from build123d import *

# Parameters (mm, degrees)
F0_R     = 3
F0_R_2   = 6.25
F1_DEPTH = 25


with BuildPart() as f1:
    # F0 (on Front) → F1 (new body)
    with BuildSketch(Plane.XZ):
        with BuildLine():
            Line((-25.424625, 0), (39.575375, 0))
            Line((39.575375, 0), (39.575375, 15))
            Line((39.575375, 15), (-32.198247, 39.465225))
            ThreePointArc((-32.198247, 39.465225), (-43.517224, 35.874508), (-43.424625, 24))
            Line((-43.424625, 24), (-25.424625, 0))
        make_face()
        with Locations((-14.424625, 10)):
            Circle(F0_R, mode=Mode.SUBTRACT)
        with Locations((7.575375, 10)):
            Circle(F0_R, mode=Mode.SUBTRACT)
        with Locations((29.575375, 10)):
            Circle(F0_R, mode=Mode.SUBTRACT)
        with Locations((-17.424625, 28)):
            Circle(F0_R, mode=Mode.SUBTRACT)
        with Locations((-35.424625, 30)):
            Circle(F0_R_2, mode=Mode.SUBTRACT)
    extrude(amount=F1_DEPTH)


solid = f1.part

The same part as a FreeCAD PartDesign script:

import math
import FreeCAD as App
import Part
import Sketcher
Q = App.Units.Quantity

doc = App.newDocument("Part")
body = doc.addObject("PartDesign::Body", "Body")

# Sketch on XZ plane
sketch1 = body.newObject("Sketcher::SketchObject", "Sketch")
sketch1.AttachmentSupport = (doc.getObject("XZ_Plane"), [""])
sketch1.MapMode = "FlatFace"
sketch1.addGeometry([
    Part.LineSegment(App.Vector(-25.424625, 0, 0), App.Vector(39.575375, 0, 0)),  # 0
    Part.LineSegment(App.Vector(39.575375, 0, 0), App.Vector(39.575375, 15, 0)),  # 1
    Part.LineSegment(App.Vector(39.575375, 15, 0), App.Vector(-32.198247, 39.465225, 0)),  # 2
    Part.ArcOfCircle(Part.Circle(App.Vector(-35.424625, 30, 0), App.Vector(0, 0, 1), 10), math.radians(71.177476), math.radians(216.869899)),  # 3
    Part.LineSegment(App.Vector(-43.424625, 24, 0), App.Vector(-25.424625, 0, 0)),  # 4
    Part.Circle(App.Vector(-14.424625, 10, 0), App.Vector(0, 0, 1), 3),  # 5
    Part.Circle(App.Vector(7.575375, 10, 0), App.Vector(0, 0, 1), 3),  # 6
    Part.Circle(App.Vector(29.575375, 10, 0), App.Vector(0, 0, 1), 3),  # 7
    Part.Circle(App.Vector(-17.424625, 28, 0), App.Vector(0, 0, 1), 3),  # 8
    Part.Circle(App.Vector(-35.424625, 30, 0), App.Vector(0, 0, 1), 6.25),  # 9
], False)
sketch1.addConstraint([
    Sketcher.Constraint("Coincident", 0, 2, 1, 1),
    Sketcher.Constraint("Coincident", 1, 2, 2, 1),
    Sketcher.Constraint("Tangent", 2, 2, 3, 1),
    Sketcher.Constraint("Tangent", 3, 2, 4, 1),
    Sketcher.Constraint("Coincident", 4, 2, 0, 1),
    Sketcher.Constraint("Horizontal", 0),
    Sketcher.Constraint("Vertical", 1),
    Sketcher.Constraint("Coincident", 9, 3, 3, 3),
    Sketcher.Constraint("Equal", 5, 6),
    Sketcher.Constraint("Equal", 6, 7),
    Sketcher.Constraint("Equal", 7, 8),
    Sketcher.Constraint("PointOnObject", 0, 2, -1),
    Sketcher.Constraint("Horizontal", 5, 3, 6, 3),
    Sketcher.Constraint("Horizontal", 6, 3, 7, 3),
    Sketcher.Constraint("Diameter", 5, Q("6 mm")),
    Sketcher.Constraint("Radius", 3, Q("10 mm")),
    Sketcher.Constraint("Diameter", 9, Q("12.5 mm")),
    Sketcher.Constraint("DistanceX", 0, 1, 0, 2, Q("65 mm")),
    Sketcher.Constraint("DistanceY", 1, 1, 1, 2, Q("15 mm")),
    Sketcher.Constraint("Distance", 4, Q("30 mm")),
    Sketcher.Constraint("DistanceY", -1, 1, 3, 3, Q("30 mm")),
    Sketcher.Constraint("DistanceY", -1, 1, 5, 3, Q("10 mm")),
    Sketcher.Constraint("DistanceY", -1, 1, 8, 3, Q("28 mm")),
    Sketcher.Constraint("DistanceX", 3, 3, 5, 3, Q("21 mm")),
    Sketcher.Constraint("DistanceX", 5, 3, 6, 3, Q("22 mm")),
    Sketcher.Constraint("DistanceX", 6, 3, 7, 3, Q("22 mm")),
    Sketcher.Constraint("DistanceX", 3, 3, 8, 3, Q("18 mm")),
    Sketcher.Constraint("DistanceX", 3, 3, -1, 1, Q("35.424625 mm")),
])
pad1 = body.newObject("PartDesign::Pad", "Pad")
pad1.Profile = sketch1
pad1.Length = 25

doc.recompute()
